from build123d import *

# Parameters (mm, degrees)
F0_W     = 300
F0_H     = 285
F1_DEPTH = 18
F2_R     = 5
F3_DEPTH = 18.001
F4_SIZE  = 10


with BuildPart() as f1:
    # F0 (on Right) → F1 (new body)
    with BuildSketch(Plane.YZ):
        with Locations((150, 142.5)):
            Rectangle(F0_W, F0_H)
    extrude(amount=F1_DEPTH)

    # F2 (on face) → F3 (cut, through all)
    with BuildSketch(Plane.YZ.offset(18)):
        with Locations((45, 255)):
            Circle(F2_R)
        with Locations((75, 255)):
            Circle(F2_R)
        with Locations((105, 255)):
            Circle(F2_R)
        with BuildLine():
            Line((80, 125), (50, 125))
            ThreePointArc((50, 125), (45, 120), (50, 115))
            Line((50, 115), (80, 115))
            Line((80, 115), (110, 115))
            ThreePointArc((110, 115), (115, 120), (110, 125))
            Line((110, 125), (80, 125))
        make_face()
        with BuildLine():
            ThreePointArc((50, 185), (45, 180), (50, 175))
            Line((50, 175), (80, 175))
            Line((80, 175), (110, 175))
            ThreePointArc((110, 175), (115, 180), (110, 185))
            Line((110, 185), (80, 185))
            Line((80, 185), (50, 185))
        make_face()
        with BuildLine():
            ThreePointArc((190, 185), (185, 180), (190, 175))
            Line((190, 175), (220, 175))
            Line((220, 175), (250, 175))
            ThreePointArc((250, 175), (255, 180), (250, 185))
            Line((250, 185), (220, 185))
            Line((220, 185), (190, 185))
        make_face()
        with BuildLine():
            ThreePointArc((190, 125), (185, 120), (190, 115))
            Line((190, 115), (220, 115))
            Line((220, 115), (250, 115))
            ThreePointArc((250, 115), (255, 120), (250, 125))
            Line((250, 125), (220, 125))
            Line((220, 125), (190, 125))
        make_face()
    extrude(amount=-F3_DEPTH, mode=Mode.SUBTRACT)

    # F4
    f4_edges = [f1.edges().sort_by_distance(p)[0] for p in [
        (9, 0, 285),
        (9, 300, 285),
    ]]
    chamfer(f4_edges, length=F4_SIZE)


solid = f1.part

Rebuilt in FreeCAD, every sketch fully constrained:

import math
import FreeCAD as App
import Part
import Sketcher
from FreeCAD import Vector
Q = App.Units.Quantity


def edges_at(feature, points):
    """Names of the edges that pass closest to the given points."""
    edges = feature.Shape.Edges
    near = lambda p: min(range(len(edges)), key=lambda i: edges[i].distToShape(Part.Vertex(*p))[0])
    return sorted({f"Edge{near(p) + 1}" for p in points})

doc = App.newDocument("Part")
body = doc.addObject("PartDesign::Body", "Body")

sketch1 = body.newObject("Sketcher::SketchObject", "Sketch")
sketch1.AttachmentSupport = (doc.getObject("YZ_Plane"), [""])
sketch1.MapMode = "FlatFace"
sketch1.addGeometry([
    Part.LineSegment(Vector(0, 285, 0), Vector(0, 0, 0)),
    Part.LineSegment(Vector(0, 0, 0), Vector(300, 0, 0)),
    Part.LineSegment(Vector(300, 0, 0), Vector(300, 285, 0)),
    Part.LineSegment(Vector(300, 285, 0), Vector(0, 285, 0)),
], False)
sketch1.addConstraint([
    Sketcher.Constraint("Coincident", 0, 2, 1, 1),
    Sketcher.Constraint("Coincident", 1, 2, 2, 1),
    Sketcher.Constraint("Coincident", 2, 2, 3, 1),
    Sketcher.Constraint("Coincident", 3, 2, 0, 1),
    Sketcher.Constraint("Vertical", 0),
    Sketcher.Constraint("Horizontal", 1),
    Sketcher.Constraint("Vertical", 2),
    Sketcher.Constraint("Horizontal", 3),
    Sketcher.Constraint("Coincident", 0, 2, -1, 1),
    Sketcher.Constraint("DistanceX", 1, 1, 1, 2, Q("300 mm")),
    Sketcher.Constraint("DistanceY", 0, 2, 0, 1, Q("285 mm")),
])
pad1 = body.newObject("PartDesign::Pad", "Pad")
pad1.Profile = sketch1
pad1.Length = 18

sketch2 = body.newObject("Sketcher::SketchObject", "Sketch001")
sketch2.AttachmentSupport = (doc.getObject("YZ_Plane"), [""])
sketch2.MapMode = "FlatFace"
sketch2.AttachmentOffset = App.Placement(Vector(0, 0, 18), App.Rotation())
sketch2.addGeometry([
    Part.Circle(Vector(45, 255, 0), Vector(0, 0, 1), 5),
    Part.Circle(Vector(75, 255, 0), Vector(0, 0, 1), 5),
    Part.Circle(Vector(105, 255, 0), Vector(0, 0, 1), 5),
    Part.ArcOfCircle(Part.Circle(Vector(50, 120, 0), Vector(0, 0, 1), 5), math.radians(90), math.radians(270)),
    Part.LineSegment(Vector(50, 115, 0), Vector(110, 115, 0)),
    Part.ArcOfCircle(Part.Circle(Vector(110, 120, 0), Vector(0, 0, 1), 5), math.radians(-90), math.radians(90)),
    Part.LineSegment(Vector(110, 125, 0), Vector(50, 125, 0)),
    Part.ArcOfCircle(Part.Circle(Vector(50, 180, 0), Vector(0, 0, 1), 5), math.radians(90), math.radians(270)),
    Part.LineSegment(Vector(50, 175, 0), Vector(110, 175, 0)),
    Part.ArcOfCircle(Part.Circle(Vector(110, 180, 0), Vector(0, 0, 1), 5), math.radians(-90), math.radians(90)),
    Part.LineSegment(Vector(110, 185, 0), Vector(50, 185, 0)),
    Part.ArcOfCircle(Part.Circle(Vector(190, 180, 0), Vector(0, 0, 1), 5), math.radians(90), math.radians(270)),
    Part.LineSegment(Vector(190, 175, 0), Vector(250, 175, 0)),
    Part.ArcOfCircle(Part.Circle(Vector(250, 180, 0), Vector(0, 0, 1), 5), math.radians(-90), math.radians(90)),
    Part.LineSegment(Vector(250, 185, 0), Vector(190, 185, 0)),
    Part.ArcOfCircle(Part.Circle(Vector(190, 120, 0), Vector(0, 0, 1), 5), math.radians(90), math.radians(270)),
    Part.LineSegment(Vector(190, 115, 0), Vector(250, 115, 0)),
    Part.ArcOfCircle(Part.Circle(Vector(250, 120, 0), Vector(0, 0, 1), 5), math.radians(-90), math.radians(90)),
    Part.LineSegment(Vector(250, 125, 0), Vector(190, 125, 0)),
], False)
sketch2.addConstraint([
    Sketcher.Constraint("Tangent", 3, 2, 4, 1),
    Sketcher.Constraint("Tangent", 4, 2, 5, 1),
    Sketcher.Constraint("Tangent", 5, 2, 6, 1),
    Sketcher.Constraint("Tangent", 6, 2, 3, 1),
    Sketcher.Constraint("Tangent", 7, 2, 8, 1),
    Sketcher.Constraint("Tangent", 8, 2, 9, 1),
    Sketcher.Constraint("Tangent", 9, 2, 10, 1),
    Sketcher.Constraint("Tangent", 10, 2, 7, 1),
    Sketcher.Constraint("Tangent", 11, 2, 12, 1),
    Sketcher.Constraint("Tangent", 12, 2, 13, 1),
    Sketcher.Constraint("Tangent", 13, 2, 14, 1),
    Sketcher.Constraint("Tangent", 14, 2, 11, 1),
    Sketcher.Constraint("Tangent", 15, 2, 16, 1),
    Sketcher.Constraint("Tangent", 16, 2, 17, 1),
    Sketcher.Constraint("Tangent", 17, 2, 18, 1),
    Sketcher.Constraint("Tangent", 18, 2, 15, 1),
    Sketcher.Constraint("Horizontal", 4),
    Sketcher.Constraint("Horizontal", 6),
    Sketcher.Constraint("Horizontal", 8),
    Sketcher.Constraint("Horizontal", 10),
    Sketcher.Constraint("Horizontal", 12),
    Sketcher.Constraint("Horizontal", 14),
    Sketcher.Constraint("Horizontal", 16),
    Sketcher.Constraint("Horizontal", 18),
    Sketcher.Constraint("Equal", 0, 1),
    Sketcher.Constraint("Equal", 1, 2),
    Sketcher.Constraint("Equal", 2, 3),
    Sketcher.Constraint("Equal", 5, 7),
    Sketcher.Constraint("Equal", 9, 11),
    Sketcher.Constraint("Equal", 13, 15),
    Sketcher.Constraint("Horizontal", 0, 3, 1, 3),
    Sketcher.Constraint("Horizontal", 1, 3, 2, 3),
    Sketcher.Constraint("Horizontal", 9, 3, 11, 3),
    Sketcher.Constraint("Horizontal", 5, 3, 15, 3),
    Sketcher.Constraint("Vertical", 3, 3, 7, 3),
    Sketcher.Constraint("Vertical", 5, 3, 9, 3),
    Sketcher.Constraint("Vertical", 11, 3, 15, 3),
    Sketcher.Constraint("Vertical", 13, 3, 17, 3),
    Sketcher.Constraint("Equal", 10, 12),
    Sketcher.Constraint("Diameter", 0, Q("10 mm")),
    Sketcher.Constraint("DistanceX", 4, 1, 4, 2, Q("60 mm")),
    Sketcher.Constraint("DistanceX", -1, 1, 0, 3, Q("45 mm")),
    Sketcher.Constraint("DistanceY", -1, 1, 0, 3, Q("255 mm")),
    Sketcher.Constraint("DistanceX", -1, 1, 1, 3, Q("75 mm")),
    Sketcher.Constraint("DistanceX", -1, 1, 2, 3, Q("105 mm")),
    Sketcher.Constraint("DistanceX", -1, 1, 3, 3, Q("50 mm")),
    Sketcher.Constraint("DistanceY", -1, 1, 3, 3, Q("120 mm")),
    Sketcher.Constraint("DistanceY", -1, 1, 7, 3, Q("180 mm")),
    Sketcher.Constraint("DistanceX", -1, 1, 11, 3, Q("190 mm")),
])
pocket1 = body.newObject("PartDesign::Pocket", "Pocket")
pocket1.Profile = sketch2
pocket1.Type = "ThroughAll"
doc.recompute()

chamfer = body.newObject("PartDesign::Chamfer", "Chamfer")
chamfer.Base = (pocket1, edges_at(pocket1, [(9, 0, 285), (9, 300, 285)]))
chamfer.Size = 10

doc.recompute()
